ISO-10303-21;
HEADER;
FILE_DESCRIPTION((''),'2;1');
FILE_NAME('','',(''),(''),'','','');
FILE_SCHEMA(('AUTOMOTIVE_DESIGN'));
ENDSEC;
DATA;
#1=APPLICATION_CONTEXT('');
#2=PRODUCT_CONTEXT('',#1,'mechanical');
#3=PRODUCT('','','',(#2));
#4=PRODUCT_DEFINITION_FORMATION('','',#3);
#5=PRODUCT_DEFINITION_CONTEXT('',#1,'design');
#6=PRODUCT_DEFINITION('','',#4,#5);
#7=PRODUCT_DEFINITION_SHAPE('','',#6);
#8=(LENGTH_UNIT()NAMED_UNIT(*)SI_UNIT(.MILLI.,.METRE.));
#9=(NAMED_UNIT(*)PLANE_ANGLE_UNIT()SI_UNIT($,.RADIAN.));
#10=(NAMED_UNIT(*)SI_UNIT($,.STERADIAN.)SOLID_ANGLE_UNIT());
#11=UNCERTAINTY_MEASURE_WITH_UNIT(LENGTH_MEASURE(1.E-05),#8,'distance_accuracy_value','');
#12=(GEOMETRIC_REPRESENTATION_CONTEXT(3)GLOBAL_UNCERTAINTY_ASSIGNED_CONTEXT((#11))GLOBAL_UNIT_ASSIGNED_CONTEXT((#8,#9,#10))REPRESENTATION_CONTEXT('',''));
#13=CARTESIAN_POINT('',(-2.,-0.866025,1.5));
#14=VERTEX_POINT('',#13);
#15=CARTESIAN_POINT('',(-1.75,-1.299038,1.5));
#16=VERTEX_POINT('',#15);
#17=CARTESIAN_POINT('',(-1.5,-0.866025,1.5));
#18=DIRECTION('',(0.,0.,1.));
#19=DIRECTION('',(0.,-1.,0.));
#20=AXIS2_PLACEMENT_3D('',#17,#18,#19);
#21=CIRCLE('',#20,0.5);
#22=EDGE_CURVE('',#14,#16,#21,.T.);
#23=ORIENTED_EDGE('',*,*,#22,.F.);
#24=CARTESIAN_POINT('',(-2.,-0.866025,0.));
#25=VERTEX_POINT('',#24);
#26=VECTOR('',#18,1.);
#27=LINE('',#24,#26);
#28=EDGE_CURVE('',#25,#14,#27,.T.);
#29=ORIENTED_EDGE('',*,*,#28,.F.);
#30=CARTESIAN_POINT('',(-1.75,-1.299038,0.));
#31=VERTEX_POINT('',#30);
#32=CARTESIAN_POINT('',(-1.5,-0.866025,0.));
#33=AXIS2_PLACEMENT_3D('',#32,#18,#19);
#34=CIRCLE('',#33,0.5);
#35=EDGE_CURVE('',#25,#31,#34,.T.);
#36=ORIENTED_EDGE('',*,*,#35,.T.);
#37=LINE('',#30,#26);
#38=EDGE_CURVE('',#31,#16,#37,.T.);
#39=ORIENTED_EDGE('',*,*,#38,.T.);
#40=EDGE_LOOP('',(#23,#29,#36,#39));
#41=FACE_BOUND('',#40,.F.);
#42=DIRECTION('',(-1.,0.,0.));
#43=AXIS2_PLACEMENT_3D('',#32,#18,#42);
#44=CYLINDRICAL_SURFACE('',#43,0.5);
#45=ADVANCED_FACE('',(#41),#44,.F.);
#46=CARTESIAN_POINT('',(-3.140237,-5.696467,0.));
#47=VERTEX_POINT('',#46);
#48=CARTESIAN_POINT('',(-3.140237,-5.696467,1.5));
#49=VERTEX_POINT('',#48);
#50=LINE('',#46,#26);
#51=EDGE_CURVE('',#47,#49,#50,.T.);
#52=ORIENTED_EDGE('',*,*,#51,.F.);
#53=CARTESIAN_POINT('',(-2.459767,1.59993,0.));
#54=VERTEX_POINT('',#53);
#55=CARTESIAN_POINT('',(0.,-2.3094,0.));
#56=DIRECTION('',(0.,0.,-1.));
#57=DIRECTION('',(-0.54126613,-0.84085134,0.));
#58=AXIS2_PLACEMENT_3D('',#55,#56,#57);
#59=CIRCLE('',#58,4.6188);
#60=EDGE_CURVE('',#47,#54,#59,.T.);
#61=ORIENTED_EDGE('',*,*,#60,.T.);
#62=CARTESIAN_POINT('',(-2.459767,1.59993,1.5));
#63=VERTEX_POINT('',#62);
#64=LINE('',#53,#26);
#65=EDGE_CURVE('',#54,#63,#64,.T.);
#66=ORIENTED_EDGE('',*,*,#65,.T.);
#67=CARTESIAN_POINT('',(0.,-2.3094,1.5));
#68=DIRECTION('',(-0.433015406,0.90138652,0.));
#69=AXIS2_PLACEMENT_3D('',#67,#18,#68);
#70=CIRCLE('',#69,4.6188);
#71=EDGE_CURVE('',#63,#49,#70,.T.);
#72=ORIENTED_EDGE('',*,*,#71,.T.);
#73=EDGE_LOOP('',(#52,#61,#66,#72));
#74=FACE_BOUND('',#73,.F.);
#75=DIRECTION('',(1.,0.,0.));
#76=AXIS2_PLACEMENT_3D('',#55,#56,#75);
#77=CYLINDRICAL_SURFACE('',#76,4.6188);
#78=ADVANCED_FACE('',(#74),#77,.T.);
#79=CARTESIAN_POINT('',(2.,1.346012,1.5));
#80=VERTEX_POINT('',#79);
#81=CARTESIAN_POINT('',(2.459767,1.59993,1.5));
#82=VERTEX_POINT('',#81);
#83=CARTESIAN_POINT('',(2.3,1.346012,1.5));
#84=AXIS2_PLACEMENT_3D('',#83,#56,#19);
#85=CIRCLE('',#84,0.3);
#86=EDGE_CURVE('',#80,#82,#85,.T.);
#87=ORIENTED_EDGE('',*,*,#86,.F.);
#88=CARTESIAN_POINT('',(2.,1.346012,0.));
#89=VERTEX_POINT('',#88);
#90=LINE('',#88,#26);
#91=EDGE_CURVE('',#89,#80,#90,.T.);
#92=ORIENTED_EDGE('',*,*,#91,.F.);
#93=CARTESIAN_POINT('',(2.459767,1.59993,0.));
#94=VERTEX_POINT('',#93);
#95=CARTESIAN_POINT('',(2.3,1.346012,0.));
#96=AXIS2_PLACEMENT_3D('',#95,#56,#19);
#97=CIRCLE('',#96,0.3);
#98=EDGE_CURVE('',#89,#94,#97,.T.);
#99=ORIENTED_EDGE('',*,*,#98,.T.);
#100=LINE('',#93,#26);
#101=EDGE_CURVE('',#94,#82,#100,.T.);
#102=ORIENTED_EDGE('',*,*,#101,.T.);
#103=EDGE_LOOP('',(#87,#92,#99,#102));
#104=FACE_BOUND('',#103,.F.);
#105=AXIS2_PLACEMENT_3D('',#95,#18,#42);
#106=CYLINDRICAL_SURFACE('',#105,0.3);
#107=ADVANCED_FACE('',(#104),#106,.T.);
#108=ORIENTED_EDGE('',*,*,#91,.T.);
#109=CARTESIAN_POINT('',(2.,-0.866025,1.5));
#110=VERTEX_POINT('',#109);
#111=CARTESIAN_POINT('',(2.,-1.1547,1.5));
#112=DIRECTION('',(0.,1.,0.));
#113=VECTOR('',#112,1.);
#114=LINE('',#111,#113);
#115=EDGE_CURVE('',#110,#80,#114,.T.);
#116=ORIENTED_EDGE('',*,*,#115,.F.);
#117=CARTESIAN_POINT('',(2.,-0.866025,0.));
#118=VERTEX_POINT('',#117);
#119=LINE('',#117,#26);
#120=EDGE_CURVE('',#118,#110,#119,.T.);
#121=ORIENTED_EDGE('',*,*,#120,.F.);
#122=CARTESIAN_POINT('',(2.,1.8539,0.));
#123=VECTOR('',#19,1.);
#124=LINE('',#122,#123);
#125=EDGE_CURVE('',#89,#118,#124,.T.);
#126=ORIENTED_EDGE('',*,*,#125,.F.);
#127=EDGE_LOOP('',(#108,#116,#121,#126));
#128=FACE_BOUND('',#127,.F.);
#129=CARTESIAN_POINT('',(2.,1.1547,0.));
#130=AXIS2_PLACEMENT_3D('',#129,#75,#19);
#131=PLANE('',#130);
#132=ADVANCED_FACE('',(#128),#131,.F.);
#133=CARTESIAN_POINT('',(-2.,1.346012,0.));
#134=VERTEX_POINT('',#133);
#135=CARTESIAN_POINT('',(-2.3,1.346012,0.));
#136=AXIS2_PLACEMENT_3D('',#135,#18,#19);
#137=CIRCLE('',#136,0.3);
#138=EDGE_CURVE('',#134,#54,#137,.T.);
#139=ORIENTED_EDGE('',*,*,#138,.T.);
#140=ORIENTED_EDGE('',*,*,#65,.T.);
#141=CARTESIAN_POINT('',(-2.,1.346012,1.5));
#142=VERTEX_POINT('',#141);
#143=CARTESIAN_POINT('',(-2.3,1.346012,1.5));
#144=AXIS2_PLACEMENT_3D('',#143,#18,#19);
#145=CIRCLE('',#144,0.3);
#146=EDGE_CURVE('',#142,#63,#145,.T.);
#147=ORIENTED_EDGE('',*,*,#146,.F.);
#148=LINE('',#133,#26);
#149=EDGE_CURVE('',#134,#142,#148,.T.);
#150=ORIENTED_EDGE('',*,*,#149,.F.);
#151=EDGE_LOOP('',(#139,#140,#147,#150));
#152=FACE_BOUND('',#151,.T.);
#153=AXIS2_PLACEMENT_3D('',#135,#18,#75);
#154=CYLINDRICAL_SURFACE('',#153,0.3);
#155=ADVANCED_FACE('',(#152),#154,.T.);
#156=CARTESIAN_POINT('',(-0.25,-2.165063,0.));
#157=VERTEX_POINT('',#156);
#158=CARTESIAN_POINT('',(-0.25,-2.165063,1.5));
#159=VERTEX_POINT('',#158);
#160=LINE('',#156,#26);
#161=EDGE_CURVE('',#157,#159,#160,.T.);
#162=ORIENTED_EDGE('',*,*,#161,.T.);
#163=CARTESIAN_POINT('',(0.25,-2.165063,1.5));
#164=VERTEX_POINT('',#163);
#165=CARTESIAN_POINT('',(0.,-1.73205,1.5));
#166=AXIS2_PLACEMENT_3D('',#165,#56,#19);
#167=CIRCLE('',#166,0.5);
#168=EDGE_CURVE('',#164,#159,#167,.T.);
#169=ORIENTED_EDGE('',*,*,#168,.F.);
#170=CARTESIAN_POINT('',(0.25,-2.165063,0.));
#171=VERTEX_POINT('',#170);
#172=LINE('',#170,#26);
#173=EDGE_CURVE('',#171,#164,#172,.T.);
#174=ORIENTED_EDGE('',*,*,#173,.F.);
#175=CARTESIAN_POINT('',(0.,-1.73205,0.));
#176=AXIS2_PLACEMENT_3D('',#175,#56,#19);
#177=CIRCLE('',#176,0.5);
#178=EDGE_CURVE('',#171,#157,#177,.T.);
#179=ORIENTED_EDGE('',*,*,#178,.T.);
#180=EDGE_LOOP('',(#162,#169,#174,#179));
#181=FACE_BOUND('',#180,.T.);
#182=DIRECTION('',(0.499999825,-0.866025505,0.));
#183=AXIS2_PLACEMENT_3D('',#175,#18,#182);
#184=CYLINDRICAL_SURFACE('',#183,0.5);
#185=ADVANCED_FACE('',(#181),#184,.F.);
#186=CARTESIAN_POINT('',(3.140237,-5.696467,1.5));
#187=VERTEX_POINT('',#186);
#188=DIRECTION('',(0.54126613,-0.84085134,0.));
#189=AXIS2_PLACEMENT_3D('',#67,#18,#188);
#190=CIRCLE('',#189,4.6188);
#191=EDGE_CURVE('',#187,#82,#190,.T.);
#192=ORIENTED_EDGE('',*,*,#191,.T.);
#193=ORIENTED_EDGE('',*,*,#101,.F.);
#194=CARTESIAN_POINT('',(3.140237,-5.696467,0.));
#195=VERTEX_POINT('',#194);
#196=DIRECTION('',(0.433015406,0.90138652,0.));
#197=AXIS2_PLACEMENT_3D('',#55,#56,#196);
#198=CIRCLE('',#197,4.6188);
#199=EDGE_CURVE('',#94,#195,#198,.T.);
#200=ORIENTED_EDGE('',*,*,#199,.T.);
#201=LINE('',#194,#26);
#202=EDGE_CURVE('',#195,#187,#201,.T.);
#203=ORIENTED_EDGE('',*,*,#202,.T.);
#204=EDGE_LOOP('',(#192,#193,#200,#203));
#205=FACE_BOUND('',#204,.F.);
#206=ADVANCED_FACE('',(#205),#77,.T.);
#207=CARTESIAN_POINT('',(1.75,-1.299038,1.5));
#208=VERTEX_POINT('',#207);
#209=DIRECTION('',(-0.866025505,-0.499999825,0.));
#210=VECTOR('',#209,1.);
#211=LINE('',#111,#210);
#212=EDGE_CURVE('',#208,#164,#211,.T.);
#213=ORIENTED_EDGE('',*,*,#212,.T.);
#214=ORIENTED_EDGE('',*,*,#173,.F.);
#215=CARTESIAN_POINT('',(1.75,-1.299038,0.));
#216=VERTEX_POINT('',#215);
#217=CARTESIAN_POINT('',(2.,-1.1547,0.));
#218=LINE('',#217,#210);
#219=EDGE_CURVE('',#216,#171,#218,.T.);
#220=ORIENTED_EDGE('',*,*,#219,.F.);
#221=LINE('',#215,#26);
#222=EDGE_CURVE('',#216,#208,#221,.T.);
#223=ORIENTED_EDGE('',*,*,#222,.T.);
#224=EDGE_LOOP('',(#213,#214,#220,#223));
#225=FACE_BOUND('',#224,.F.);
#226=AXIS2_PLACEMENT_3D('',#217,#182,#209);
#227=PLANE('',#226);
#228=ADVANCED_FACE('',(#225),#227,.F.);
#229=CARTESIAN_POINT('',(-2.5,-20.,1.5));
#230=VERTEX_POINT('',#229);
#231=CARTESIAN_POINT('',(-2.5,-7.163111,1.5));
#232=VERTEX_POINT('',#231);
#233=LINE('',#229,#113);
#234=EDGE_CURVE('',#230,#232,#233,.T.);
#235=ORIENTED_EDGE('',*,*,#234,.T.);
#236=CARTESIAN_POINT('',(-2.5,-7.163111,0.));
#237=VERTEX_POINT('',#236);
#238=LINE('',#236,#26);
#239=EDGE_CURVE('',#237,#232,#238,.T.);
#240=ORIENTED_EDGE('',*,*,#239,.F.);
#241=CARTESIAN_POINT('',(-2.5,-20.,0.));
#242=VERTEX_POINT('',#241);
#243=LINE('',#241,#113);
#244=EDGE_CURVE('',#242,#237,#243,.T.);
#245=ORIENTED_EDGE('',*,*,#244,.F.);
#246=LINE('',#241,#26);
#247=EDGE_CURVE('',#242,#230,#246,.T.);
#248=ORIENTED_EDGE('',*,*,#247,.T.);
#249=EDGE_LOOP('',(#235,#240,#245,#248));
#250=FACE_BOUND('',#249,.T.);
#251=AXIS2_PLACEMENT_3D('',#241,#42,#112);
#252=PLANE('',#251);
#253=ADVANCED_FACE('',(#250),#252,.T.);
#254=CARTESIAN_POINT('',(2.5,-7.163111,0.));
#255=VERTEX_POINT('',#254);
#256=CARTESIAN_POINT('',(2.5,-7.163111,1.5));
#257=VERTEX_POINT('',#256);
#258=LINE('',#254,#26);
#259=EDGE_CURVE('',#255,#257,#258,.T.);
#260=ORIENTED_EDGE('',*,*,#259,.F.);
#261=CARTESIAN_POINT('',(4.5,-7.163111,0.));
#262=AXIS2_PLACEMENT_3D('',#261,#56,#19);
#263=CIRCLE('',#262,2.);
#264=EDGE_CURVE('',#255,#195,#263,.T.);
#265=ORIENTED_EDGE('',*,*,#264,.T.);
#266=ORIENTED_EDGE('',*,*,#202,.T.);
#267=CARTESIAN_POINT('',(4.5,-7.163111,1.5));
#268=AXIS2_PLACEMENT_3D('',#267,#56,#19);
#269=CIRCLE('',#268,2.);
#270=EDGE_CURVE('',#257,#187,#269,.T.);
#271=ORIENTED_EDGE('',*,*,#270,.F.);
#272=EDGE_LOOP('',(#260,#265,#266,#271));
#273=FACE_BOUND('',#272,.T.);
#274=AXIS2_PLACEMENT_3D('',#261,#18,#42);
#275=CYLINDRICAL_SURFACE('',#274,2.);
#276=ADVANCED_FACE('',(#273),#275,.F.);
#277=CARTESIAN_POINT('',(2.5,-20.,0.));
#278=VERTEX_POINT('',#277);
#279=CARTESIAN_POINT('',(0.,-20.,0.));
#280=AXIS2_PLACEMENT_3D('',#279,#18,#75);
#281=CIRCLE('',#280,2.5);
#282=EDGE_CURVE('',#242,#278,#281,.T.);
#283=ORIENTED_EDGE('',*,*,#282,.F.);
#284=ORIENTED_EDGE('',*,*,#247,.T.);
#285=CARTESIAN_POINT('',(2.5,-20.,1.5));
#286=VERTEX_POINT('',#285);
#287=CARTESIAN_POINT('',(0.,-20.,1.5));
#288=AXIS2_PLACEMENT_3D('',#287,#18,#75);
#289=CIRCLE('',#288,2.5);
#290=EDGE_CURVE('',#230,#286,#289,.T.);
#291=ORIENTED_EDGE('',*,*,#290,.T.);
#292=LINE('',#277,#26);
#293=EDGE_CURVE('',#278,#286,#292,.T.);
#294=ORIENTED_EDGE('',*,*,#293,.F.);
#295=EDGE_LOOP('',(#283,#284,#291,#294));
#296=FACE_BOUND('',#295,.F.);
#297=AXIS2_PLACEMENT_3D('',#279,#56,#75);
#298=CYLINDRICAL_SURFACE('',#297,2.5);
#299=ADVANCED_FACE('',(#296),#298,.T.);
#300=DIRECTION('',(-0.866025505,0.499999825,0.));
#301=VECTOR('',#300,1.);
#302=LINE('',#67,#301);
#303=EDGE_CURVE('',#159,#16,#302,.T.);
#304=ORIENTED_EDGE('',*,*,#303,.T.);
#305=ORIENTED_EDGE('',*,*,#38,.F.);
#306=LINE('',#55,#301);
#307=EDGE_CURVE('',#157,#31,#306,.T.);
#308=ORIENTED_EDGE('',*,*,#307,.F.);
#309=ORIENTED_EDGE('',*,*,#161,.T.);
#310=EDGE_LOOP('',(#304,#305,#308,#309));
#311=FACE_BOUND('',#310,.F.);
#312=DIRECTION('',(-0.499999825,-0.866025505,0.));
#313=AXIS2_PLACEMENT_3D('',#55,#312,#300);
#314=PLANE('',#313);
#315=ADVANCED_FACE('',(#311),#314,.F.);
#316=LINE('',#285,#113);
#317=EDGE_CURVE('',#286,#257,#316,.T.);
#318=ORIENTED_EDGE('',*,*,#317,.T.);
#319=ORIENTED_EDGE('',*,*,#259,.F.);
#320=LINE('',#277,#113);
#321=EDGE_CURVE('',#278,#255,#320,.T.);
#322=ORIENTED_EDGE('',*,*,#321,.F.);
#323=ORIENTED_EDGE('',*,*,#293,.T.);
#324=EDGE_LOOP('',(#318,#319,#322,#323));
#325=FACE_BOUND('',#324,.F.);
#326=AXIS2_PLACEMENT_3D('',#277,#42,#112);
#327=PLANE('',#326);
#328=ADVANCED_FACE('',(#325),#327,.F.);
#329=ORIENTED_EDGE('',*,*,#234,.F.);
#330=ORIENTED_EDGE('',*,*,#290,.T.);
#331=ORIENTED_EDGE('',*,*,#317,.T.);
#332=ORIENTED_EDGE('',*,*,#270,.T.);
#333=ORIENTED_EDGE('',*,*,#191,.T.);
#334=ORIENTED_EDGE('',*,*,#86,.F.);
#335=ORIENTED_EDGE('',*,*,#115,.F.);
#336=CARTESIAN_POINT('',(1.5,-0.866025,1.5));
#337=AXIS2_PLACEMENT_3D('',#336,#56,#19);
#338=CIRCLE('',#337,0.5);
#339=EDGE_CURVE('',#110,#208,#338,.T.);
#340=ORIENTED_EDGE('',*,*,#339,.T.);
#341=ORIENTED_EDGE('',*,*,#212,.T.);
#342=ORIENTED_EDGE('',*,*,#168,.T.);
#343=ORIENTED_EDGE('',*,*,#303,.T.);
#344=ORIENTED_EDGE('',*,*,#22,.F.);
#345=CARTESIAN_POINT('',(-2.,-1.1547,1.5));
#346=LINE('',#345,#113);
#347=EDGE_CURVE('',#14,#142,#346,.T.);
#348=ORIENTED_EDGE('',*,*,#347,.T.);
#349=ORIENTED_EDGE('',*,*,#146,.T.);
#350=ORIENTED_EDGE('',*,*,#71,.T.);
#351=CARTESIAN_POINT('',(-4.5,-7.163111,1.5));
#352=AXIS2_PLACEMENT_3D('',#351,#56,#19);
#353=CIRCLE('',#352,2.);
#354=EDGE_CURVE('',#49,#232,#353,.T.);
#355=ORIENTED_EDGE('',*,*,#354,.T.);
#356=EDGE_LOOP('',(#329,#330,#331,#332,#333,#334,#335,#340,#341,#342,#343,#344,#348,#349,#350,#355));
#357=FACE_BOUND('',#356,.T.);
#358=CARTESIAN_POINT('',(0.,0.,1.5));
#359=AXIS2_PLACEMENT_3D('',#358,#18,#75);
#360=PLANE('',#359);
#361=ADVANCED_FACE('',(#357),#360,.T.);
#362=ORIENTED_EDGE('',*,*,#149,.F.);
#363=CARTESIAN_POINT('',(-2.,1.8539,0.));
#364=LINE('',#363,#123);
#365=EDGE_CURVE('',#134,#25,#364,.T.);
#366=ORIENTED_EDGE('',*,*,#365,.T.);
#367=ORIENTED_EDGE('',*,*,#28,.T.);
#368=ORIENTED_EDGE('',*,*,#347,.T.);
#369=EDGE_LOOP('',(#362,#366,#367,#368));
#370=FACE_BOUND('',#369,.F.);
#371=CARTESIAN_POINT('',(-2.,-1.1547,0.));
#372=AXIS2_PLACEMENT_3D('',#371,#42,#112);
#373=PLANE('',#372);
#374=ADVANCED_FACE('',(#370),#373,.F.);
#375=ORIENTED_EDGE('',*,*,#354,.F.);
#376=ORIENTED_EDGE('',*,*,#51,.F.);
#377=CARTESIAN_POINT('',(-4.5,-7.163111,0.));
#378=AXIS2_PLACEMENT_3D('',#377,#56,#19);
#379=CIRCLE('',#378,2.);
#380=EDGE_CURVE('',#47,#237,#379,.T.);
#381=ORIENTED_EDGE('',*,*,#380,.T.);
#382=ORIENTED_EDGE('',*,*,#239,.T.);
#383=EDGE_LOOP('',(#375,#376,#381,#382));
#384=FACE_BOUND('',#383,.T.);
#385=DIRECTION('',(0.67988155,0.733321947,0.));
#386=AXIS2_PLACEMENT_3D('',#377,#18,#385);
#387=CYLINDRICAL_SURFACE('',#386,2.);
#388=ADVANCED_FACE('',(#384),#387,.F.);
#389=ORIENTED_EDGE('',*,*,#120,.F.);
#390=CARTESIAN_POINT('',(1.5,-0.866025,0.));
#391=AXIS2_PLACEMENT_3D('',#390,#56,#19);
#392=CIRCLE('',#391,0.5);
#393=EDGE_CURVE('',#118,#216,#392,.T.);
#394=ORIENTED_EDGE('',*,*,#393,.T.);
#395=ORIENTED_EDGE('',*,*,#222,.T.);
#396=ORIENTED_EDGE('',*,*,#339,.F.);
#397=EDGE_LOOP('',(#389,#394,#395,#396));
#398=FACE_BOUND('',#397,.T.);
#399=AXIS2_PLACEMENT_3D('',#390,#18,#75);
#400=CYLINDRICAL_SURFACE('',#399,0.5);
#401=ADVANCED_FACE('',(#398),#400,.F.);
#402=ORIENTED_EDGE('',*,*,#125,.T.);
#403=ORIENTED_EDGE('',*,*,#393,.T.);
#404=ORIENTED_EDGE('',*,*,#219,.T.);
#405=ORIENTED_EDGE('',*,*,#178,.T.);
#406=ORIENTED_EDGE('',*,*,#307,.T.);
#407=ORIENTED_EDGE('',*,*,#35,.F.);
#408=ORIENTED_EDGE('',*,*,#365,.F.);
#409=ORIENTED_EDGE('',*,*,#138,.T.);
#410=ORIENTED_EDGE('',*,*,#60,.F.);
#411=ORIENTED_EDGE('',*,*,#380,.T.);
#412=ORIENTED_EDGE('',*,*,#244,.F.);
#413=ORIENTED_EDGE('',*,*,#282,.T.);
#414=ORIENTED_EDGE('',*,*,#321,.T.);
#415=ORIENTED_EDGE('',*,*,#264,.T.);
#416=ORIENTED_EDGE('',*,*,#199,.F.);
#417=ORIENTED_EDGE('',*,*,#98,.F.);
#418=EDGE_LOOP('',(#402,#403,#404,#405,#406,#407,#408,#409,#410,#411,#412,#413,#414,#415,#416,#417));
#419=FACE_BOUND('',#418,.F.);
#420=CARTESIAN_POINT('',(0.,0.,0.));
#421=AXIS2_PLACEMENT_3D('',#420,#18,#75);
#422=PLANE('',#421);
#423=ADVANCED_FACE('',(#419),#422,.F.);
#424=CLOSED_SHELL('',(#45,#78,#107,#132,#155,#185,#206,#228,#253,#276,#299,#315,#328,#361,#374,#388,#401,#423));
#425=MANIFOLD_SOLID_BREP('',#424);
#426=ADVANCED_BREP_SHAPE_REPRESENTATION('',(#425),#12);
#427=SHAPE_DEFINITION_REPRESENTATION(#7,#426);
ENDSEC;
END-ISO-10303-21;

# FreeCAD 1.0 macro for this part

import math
import FreeCAD as App
import Part
import Sketcher
from FreeCAD import Vector
Q = App.Units.Quantity


def edges_at(feature, points):
    """Names of the edges that pass closest to the given points."""
    edges = feature.Shape.Edges
    near = lambda p: min(range(len(edges)), key=lambda i: edges[i].distToShape(Part.Vertex(*p))[0])
    return sorted({f"Edge{near(p) + 1}" for p in points})

doc = App.newDocument("Part")
body = doc.addObject("PartDesign::Body", "Body")

sketch1 = body.newObject("Sketcher::SketchObject", "Sketch")
sketch1.AttachmentSupport = (doc.getObject("XY_Plane"), [""])
sketch1.MapMode = "FlatFace"
sketch1.addGeometry([
    Part.LineSegment(Vector(2, -1.1547, 0), Vector(0, -2.3094, 0)),
    Part.LineSegment(Vector(0, -2.3094, 0), Vector(-2, -1.1547, 0)),
    Part.LineSegment(Vector(-2, -1.1547, 0), Vector(-2, 1.8539, 0)),
    Part.ArcOfCircle(Part.Circle(Vector(0, -2.3094, 0), Vector(0, 0, 1), 4.6188), math.radians(115.659078), math.radians(237.230129)),
    Part.LineSegment(Vector(-2.5, -6.193124, 0), Vector(-2.5, -20, 0)),
    Part.ArcOfCircle(Part.Circle(Vector(0, -20, 0), Vector(0, 0, 1), 2.5), math.radians(180), math.radians(360)),
    Part.LineSegment(Vector(2.5, -20, 0), Vector(2.5, -6.193124, 0)),
    Part.ArcOfCircle(Part.Circle(Vector(0, -2.3094, 0), Vector(0, 0, 1), 4.6188), math.radians(-57.230129), math.radians(64.340922)),
    Part.LineSegment(Vector(2, 1.8539, 0), Vector(2, -1.1547, 0)),
], False)
sketch1.addConstraint([
    Sketcher.Constraint("Coincident", 0, 2, 1, 1),
    Sketcher.Constraint("Coincident", 1, 2, 2, 1),
    Sketcher.Constraint("Coincident", 2, 2, 3, 1),
    Sketcher.Constraint("Coincident", 3, 2, 4, 1),
    Sketcher.Constraint("Tangent", 4, 2, 5, 1),
    Sketcher.Constraint("Tangent", 5, 2, 6, 1),
    Sketcher.Constraint("Coincident", 6, 2, 7, 1),
    Sketcher.Constraint("Coincident", 7, 2, 8, 1),
    Sketcher.Constraint("Coincident", 8, 2, 0, 1),
    Sketcher.Constraint("Vertical", 2),
    Sketcher.Constraint("Vertical", 4),
    Sketcher.Constraint("Vertical", 6),
    Sketcher.Constraint("Vertical", 8),
    Sketcher.Constraint("Coincident", 7, 3, 3, 3),
    Sketcher.Constraint("Coincident", 0, 2, 3, 3),
    Sketcher.Constraint("Equal", 3, 7),
    Sketcher.Constraint("Symmetric", 3, 2, 6, 2, -2),
    Sketcher.Constraint("Symmetric", 1, 2, 8, 2, -2),
    Sketcher.Constraint("Radius", 5, 2.5),
    Sketcher.Constraint("DistanceY", 5, 3, -1, 1, 20.0),
    Sketcher.Constraint("DistanceX", 2, 2, 7, 2, 4.0),
    Sketcher.Constraint("Angle", 0, Q("-150 deg")),
    Sketcher.Constraint("Radius", 3, 4.6188),
    Sketcher.Constraint("DistanceY", 4, 2, 4, 1, 13.8069),
])
pad1 = body.newObject("PartDesign::Pad", "Pad")
pad1.Profile = sketch1
pad1.Length = 1.5
doc.recompute()

fillet = body.newObject("PartDesign::Fillet", "Fillet")
fillet.Base = (pad1, edges_at(pad1, [(-2, 1.854, 0.75), (2, 1.854, 0.75)]))
fillet.Radius = 0.3
doc.recompute()

fillet2 = body.newObject("PartDesign::Fillet", "Fillet001")
fillet2.Base = (fillet, edges_at(fillet, [(2, -1.155, 0.75), (0, -2.309, 0.75), (-2, -1.155, 0.75)]))
fillet2.Radius = 0.5
doc.recompute()

fillet3 = body.newObject("PartDesign::Fillet", "Fillet002")
fillet3.Base = (fillet2, edges_at(fillet2, [(-2.5, -6.193, 0.75), (2.5, -6.193, 0.75)]))
fillet3.Radius = 2

doc.recompute()
